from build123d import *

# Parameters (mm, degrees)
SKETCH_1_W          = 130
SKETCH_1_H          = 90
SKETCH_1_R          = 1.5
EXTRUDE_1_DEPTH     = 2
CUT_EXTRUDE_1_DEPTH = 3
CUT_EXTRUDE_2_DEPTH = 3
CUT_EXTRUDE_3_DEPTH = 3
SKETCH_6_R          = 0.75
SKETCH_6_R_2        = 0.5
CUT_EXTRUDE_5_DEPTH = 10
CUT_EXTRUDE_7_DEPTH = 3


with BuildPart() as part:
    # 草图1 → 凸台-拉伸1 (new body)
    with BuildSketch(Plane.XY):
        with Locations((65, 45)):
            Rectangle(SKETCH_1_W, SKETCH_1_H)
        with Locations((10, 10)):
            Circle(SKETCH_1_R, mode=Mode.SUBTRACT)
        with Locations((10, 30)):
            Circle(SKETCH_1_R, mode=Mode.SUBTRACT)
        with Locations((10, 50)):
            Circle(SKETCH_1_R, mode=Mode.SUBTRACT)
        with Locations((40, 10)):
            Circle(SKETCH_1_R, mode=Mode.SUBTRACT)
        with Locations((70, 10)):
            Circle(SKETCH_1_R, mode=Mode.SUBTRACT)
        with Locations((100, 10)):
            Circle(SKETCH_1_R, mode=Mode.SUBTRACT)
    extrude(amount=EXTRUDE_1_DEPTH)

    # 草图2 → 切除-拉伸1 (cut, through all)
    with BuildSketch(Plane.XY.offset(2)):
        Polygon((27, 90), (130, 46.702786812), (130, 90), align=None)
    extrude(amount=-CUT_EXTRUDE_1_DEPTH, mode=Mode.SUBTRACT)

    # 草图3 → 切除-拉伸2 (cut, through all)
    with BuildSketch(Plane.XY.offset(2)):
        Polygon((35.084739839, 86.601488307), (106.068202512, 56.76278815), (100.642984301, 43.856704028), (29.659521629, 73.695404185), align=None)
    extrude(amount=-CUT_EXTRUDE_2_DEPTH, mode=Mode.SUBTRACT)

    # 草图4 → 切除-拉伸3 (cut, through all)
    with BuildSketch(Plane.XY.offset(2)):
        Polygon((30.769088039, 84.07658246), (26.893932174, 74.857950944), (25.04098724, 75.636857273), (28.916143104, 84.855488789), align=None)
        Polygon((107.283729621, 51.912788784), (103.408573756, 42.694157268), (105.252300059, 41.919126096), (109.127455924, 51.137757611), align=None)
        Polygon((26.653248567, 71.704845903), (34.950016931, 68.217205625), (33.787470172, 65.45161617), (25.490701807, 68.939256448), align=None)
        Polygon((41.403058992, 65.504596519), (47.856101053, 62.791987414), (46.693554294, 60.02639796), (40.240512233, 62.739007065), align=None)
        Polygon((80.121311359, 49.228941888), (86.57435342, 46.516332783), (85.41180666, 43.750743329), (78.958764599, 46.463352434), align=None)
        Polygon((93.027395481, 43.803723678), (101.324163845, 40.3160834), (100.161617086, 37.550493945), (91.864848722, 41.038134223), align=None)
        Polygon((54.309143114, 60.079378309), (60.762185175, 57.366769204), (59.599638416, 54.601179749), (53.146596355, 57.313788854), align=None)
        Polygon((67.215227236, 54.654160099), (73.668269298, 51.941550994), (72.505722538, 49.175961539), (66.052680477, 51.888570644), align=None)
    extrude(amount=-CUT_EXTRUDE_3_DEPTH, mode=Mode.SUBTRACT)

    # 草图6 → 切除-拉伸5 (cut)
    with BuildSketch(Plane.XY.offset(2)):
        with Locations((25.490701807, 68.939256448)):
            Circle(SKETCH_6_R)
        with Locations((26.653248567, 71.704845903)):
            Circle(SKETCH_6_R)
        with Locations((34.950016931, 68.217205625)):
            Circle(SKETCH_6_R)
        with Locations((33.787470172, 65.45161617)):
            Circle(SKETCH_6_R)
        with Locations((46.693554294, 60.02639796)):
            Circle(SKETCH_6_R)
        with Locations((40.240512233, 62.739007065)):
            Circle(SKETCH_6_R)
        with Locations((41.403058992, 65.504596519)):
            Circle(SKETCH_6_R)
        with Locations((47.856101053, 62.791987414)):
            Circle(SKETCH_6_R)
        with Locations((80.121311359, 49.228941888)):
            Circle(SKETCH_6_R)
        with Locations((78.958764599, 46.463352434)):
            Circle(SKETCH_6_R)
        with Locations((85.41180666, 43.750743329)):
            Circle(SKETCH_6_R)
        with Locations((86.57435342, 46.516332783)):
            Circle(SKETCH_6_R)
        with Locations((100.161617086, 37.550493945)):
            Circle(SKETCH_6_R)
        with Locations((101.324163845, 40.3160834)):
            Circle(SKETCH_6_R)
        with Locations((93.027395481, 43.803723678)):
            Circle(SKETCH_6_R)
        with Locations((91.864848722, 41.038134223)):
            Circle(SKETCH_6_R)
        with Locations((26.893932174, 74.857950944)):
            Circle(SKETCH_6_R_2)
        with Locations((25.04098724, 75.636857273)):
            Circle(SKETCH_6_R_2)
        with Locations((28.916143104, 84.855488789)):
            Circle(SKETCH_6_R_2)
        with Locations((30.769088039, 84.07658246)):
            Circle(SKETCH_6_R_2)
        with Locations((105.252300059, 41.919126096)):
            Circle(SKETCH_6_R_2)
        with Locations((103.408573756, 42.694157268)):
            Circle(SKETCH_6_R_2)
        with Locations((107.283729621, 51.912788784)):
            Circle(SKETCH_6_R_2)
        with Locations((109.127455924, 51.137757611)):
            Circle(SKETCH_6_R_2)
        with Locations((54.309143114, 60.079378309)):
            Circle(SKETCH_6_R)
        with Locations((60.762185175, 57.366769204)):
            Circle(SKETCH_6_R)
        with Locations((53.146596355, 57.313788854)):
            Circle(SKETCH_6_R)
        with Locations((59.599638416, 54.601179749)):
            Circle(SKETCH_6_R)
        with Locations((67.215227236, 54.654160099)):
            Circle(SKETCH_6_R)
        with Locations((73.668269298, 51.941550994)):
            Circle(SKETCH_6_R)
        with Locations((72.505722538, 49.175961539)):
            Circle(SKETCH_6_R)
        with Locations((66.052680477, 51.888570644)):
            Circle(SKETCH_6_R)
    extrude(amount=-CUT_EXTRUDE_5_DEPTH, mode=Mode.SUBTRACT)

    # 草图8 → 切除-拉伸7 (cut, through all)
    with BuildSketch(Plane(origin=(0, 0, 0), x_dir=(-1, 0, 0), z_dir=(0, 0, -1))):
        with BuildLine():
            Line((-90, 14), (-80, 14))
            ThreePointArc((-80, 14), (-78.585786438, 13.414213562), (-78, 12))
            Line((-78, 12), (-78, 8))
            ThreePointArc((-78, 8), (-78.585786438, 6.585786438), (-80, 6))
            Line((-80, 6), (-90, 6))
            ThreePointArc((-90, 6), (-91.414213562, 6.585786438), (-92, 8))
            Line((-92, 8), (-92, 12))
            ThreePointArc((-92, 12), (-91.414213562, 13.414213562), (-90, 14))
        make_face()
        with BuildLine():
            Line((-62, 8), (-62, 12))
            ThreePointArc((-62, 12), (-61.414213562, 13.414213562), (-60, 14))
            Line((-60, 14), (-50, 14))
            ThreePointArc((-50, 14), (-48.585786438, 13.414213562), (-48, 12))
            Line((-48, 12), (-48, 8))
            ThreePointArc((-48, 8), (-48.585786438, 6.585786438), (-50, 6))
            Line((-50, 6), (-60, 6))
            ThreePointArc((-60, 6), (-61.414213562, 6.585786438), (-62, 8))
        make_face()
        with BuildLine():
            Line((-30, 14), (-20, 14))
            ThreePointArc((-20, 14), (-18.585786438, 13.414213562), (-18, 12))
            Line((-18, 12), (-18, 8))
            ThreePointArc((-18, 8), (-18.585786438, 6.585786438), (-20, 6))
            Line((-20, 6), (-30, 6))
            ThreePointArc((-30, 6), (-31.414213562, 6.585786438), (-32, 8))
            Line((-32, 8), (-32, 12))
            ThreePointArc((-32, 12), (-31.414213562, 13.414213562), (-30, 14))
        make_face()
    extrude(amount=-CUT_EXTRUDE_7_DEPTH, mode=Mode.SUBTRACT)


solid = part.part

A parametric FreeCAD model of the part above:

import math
import FreeCAD as App
import Part
import Sketcher
Q = App.Units.Quantity


def add_polygon(sketch, points):
    """Adds a closed chain of lines whose ends are joined by coincident constraints."""
    first, n = sketch.GeometryCount, len(points)
    for a, b in zip(points, points[1:] + points[:1]):
        sketch.addGeometry(Part.LineSegment(App.Vector(*a, 0), App.Vector(*b, 0)), False)
    for i in range(n):
        sketch.addConstraint(Sketcher.Constraint("Coincident", first + i, 2, first + (i + 1) % n, 1))

doc = App.newDocument("Part")
body = doc.addObject("PartDesign::Body", "Body")

# Sketch on XY plane
sketch1 = body.newObject("Sketcher::SketchObject", "Sketch")
sketch1.AttachmentSupport = (doc.getObject("XY_Plane"), [""])
sketch1.MapMode = "FlatFace"
add_polygon(sketch1, [(0, 90), (0, 0), (130, 0), (130, 90)])  # lines 0-3
sketch1.addGeometry(Part.Circle(App.Vector(10, 10, 0), App.Vector(0, 0, 1), 1.5), False)  # 4
sketch1.addGeometry(Part.Circle(App.Vector(40, 10, 0), App.Vector(0, 0, 1), 1.5), False)  # 5
sketch1.addGeometry(Part.Circle(App.Vector(70, 10, 0), App.Vector(0, 0, 1), 1.5), False)  # 6
sketch1.addGeometry(Part.Circle(App.Vector(100, 10, 0), App.Vector(0, 0, 1), 1.5), False)  # 7
sketch1.addGeometry(Part.Circle(App.Vector(10, 30, 0), App.Vector(0, 0, 1), 1.5), False)  # 8
sketch1.addGeometry(Part.Circle(App.Vector(10, 50, 0), App.Vector(0, 0, 1), 1.5), False)  # 9
sketch1.addConstraint([
    Sketcher.Constraint("Vertical", 0),
    Sketcher.Constraint("Horizontal", 1),
    Sketcher.Constraint("Vertical", 2),
    Sketcher.Constraint("Horizontal", 3),
    Sketcher.Constraint("Coincident", 0, 2, -1, 1),
    Sketcher.Constraint("Equal", 4, 5),
    Sketcher.Constraint("Equal", 5, 6),
    Sketcher.Constraint("Equal", 6, 7),
    Sketcher.Constraint("Equal", 7, 8),
    Sketcher.Constraint("Equal", 8, 9),
    Sketcher.Constraint("Horizontal", 4, 3, 5, 3),
    Sketcher.Constraint("Horizontal", 5, 3, 6, 3),
    Sketcher.Constraint("Horizontal", 6, 3, 7, 3),
    Sketcher.Constraint("Vertical", 4, 3, 8, 3),
    Sketcher.Constraint("Vertical", 8, 3, 9, 3),
    Sketcher.Constraint("Diameter", 4, 3.0),
    Sketcher.Constraint("DistanceX", 1, 1, 1, 2, 130.0),
    Sketcher.Constraint("DistanceY", 0, 2, 0, 1, 90.0),
    Sketcher.Constraint("DistanceX", -1, 1, 4, 3, 10.0),
    Sketcher.Constraint("DistanceY", -1, 1, 4, 3, 10.0),
    Sketcher.Constraint("DistanceX", -1, 1, 5, 3, 40.0),
    Sketcher.Constraint("DistanceX", -1, 1, 6, 3, 70.0),
    Sketcher.Constraint("DistanceX", -1, 1, 7, 3, 100.0),
    Sketcher.Constraint("DistanceY", -1, 1, 8, 3, 30.0),
    Sketcher.Constraint("DistanceY", -1, 1, 9, 3, 50.0),
])
pad1 = body.newObject("PartDesign::Pad", "Pad")
pad1.Profile = sketch1
pad1.Length = 2

# Sketch on XY plane
sketch2 = body.newObject("Sketcher::SketchObject", "Sketch001")
sketch2.AttachmentSupport = (doc.getObject("XY_Plane"), [""])
sketch2.MapMode = "FlatFace"
sketch2.AttachmentOffset = App.Placement(App.Vector(0, 0, 2), App.Rotation())
add_polygon(sketch2, [(27, 90), (130, 47), (130, 90)])  # lines 0-2
sketch2.addConstraint([
    Sketcher.Constraint("Vertical", 1),
    Sketcher.Constraint("Horizontal", 2),
    Sketcher.Constraint("DistanceX", 2, 2, 2, 1, 103.0),
    Sketcher.Constraint("DistanceX", -1, 1, 0, 2, 130.0),
    Sketcher.Constraint("DistanceY", -1, 1, 1, 2, 90.0),
    Sketcher.Constraint("Angle", 0, Q("-22.8 deg")),
])
pocket1 = body.newObject("PartDesign::Pocket", "Pocket")
pocket1.Profile = sketch2
pocket1.Type = "ThroughAll"

# Sketch on XY plane
sketch3 = body.newObject("Sketcher::SketchObject", "Sketch002")
sketch3.AttachmentSupport = (doc.getObject("XY_Plane"), [""])
sketch3.MapMode = "FlatFace"
sketch3.AttachmentOffset = App.Placement(App.Vector(0, 0, 2), App.Rotation())
add_polygon(sketch3, [(106, 57), (35, 87), (30, 74), (101, 44)])  # lines 0-3
sketch3.addConstraint([
    Sketcher.Constraint("Perpendicular", 0, 1),
    Sketcher.Constraint("Perpendicular", 1, 2),
    Sketcher.Constraint("Perpendicular", 2, 3),
    Sketcher.Constraint("Distance", 0, 77.0),
    Sketcher.Constraint("Distance", 1, 14.0),
    Sketcher.Constraint("Angle", 0, Q("157.2 deg")),
    Sketcher.Constraint("DistanceX", -1, 1, 0, 2, 35.08474),
    Sketcher.Constraint("DistanceY", -1, 1, 0, 2, 86.601488),
])
pocket2 = body.newObject("PartDesign::Pocket", "Pocket001")
pocket2.Profile = sketch3
pocket2.Type = "ThroughAll"

# Sketch on XY plane
sketch4 = body.newObject("Sketcher::SketchObject", "Sketch003")
sketch4.AttachmentSupport = (doc.getObject("XY_Plane"), [""])
sketch4.MapMode = "FlatFace"
sketch4.AttachmentOffset = App.Placement(App.Vector(0, 0, 2), App.Rotation())
add_polygon(sketch4, [(26.9, 74.9), (30.8, 84.1), (28.9, 84.9), (25, 75.6)])  # lines 0-3
add_polygon(sketch4, [(107.3, 51.9), (103.4, 42.7), (105.3, 41.9), (109.1, 51.1)])  # lines 4-7
add_polygon(sketch4, [(35, 68.2), (26.7, 71.7), (25.5, 68.9), (33.8, 65.5)])  # lines 8-11
add_polygon(sketch4, [(47.9, 62.8), (41.4, 65.5), (40.2, 62.7), (46.7, 60)])  # lines 12-15
add_polygon(sketch4, [(86.6, 46.5), (80.1, 49.2), (79, 46.5), (85.4, 43.8)])  # lines 16-19
add_polygon(sketch4, [(101.3, 40.3), (93, 43.8), (91.9, 41), (100.2, 37.6)])  # lines 20-23
add_polygon(sketch4, [(60.8, 57.4), (54.3, 60.1), (53.1, 57.3), (59.6, 54.6)])  # lines 24-27
add_polygon(sketch4, [(73.7, 51.9), (67.2, 54.7), (66.1, 51.9), (72.5, 49.2)])  # lines 28-31
sketch4.addConstraint([
    Sketcher.Constraint("Perpendicular", 0, 1),
    Sketcher.Constraint("Perpendicular", 1, 2),
    Sketcher.Constraint("Perpendicular", 2, 3),
    Sketcher.Constraint("Perpendicular", 3, 4),
    Sketcher.Constraint("Perpendicular", 4, 5),
    Sketcher.Constraint("Perpendicular", 5, 6),
    Sketcher.Constraint("Perpendicular", 6, 7),
    Sketcher.Constraint("Parallel", 7, 8),
    Sketcher.Constraint("Perpendicular", 8, 9),
    Sketcher.Constraint("Perpendicular", 9, 10),
    Sketcher.Constraint("Perpendicular", 10, 11),
    Sketcher.Constraint("Perpendicular", 11, 12),
    Sketcher.Constraint("Perpendicular", 12, 13),
    Sketcher.Constraint("Perpendicular", 13, 14),
    Sketcher.Constraint("Perpendicular", 14, 15),
    Sketcher.Constraint("Perpendicular", 15, 16),
    Sketcher.Constraint("Perpendicular", 16, 17),
    Sketcher.Constraint("Perpendicular", 17, 18),
    Sketcher.Constraint("Perpendicular", 18, 19),
    Sketcher.Constraint("Perpendicular", 19, 20),
    Sketcher.Constraint("Perpendicular", 20, 21),
    Sketcher.Constraint("Perpendicular", 21, 22),
    Sketcher.Constraint("Perpendicular", 22, 23),
    Sketcher.Constraint("Perpendicular", 23, 24),
    Sketcher.Constraint("Perpendicular", 24, 25),
    Sketcher.Constraint("Perpendicular", 25, 26),
    Sketcher.Constraint("Perpendicular", 26, 27),
    Sketcher.Constraint("Perpendicular", 27, 28),
    Sketcher.Constraint("Perpendicular", 28, 29),
    Sketcher.Constraint("Perpendicular", 29, 30),
    Sketcher.Constraint("Perpendicular", 30, 31),
    Sketcher.Constraint("Equal", 2, 4),
    Sketcher.Constraint("Equal", 11, 13),
    Sketcher.Constraint("Equal", 14, 16),
    Sketcher.Constraint("Equal", 15, 17),
    Sketcher.Constraint("Equal", 10, 20),
    Sketcher.Constraint("Equal", 19, 21),
    Sketcher.Constraint("Equal", 18, 24),
    Sketcher.Constraint("Equal", 23, 25),
    Sketcher.Constraint("Equal", 26, 28),
    Sketcher.Constraint("Equal", 27, 29),
    Sketcher.Constraint("Distance", 0, 10.0),
    Sketcher.Constraint("Distance", 5, 2.0),
    Sketcher.Constraint("Distance", 8, 9.0),
    Sketcher.Constraint("Distance", 9, 3.0),
    Sketcher.Constraint("Distance", 12, 7.0),
    Sketcher.Constraint("Angle", 0, Q("67.2 deg")),
    Sketcher.Constraint("Distance", 1, 2.01),
    Sketcher.Constraint("DistanceX", -1, 1, 5, 2, 105.2523),
    Sketcher.Constraint("DistanceX", -1, 1, 9, 2, 25.490702),
    Sketcher.Constraint("DistanceX", -1, 1, 15, 2, 47.856101),
    Sketcher.Constraint("DistanceY", 4, 2, 2, 2, 32.9427),
    Sketcher.Constraint("DistanceY", 9, 2, 2, 2, 6.697601),
    Sketcher.Constraint("DistanceY", 13, 2, 11, 2, 5.478199),
    Sketcher.Constraint("DistanceY", 21, 2, 19, 2, 5.478199),
    Sketcher.Constraint("DistanceY", 25, 2, 15, 2, 5.478199),
    Sketcher.Constraint("DistanceY", 29, 2, 27, 2, 5.478199),
    Sketcher.Constraint("DistanceY", 17, 2, 31, 2, 5.478199),
    Sketcher.Constraint("DistanceX", -1, 1, 0, 2, 30.769088),
    Sketcher.Constraint("DistanceY", -1, 1, 1, 2, 84.855489),
    Sketcher.Constraint("DistanceX", -1, 1, 16, 2, 80.121311),
    Sketcher.Constraint("DistanceX", -1, 1, 21, 2, 91.864849),
    Sketcher.Constraint("DistanceX", -1, 1, 26, 2, 59.599638),
    Sketcher.Constraint("DistanceX", -1, 1, 29, 2, 66.05268),
])
pocket3 = body.newObject("PartDesign::Pocket", "Pocket002")
pocket3.Profile = sketch4
pocket3.Type = "ThroughAll"

# Sketch on XY plane
sketch5 = body.newObject("Sketcher::SketchObject", "Sketch004")
sketch5.AttachmentSupport = (doc.getObject("XY_Plane"), [""])
sketch5.MapMode = "FlatFace"
sketch5.AttachmentOffset = App.Placement(App.Vector(0, 0, 2), App.Rotation())
sketch5.addGeometry([
    Part.Circle(App.Vector(25.5, 68.9, 0), App.Vector(0, 0, 1), 0.8),  # 0
    Part.Circle(App.Vector(26.7, 71.7, 0), App.Vector(0, 0, 1), 0.8),  # 1
    Part.Circle(App.Vector(35, 68.2, 0), App.Vector(0, 0, 1), 0.8),  # 2
    Part.Circle(App.Vector(33.8, 65.5, 0), App.Vector(0, 0, 1), 0.8),  # 3
    Part.Circle(App.Vector(46.7, 60, 0), App.Vector(0, 0, 1), 0.8),  # 4
    Part.Circle(App.Vector(40.2, 62.7, 0), App.Vector(0, 0, 1), 0.8),  # 5
    Part.Circle(App.Vector(41.4, 65.5, 0), App.Vector(0, 0, 1), 0.8),  # 6
    Part.Circle(App.Vector(47.9, 62.8, 0), App.Vector(0, 0, 1), 0.8),  # 7
    Part.Circle(App.Vector(80.1, 49.2, 0), App.Vector(0, 0, 1), 0.8),  # 8
    Part.Circle(App.Vector(79, 46.5, 0), App.Vector(0, 0, 1), 0.8),  # 9
    Part.Circle(App.Vector(85.4, 43.8, 0), App.Vector(0, 0, 1), 0.8),  # 10
    Part.Circle(App.Vector(86.6, 46.5, 0), App.Vector(0, 0, 1), 0.8),  # 11
    Part.Circle(App.Vector(100.2, 37.6, 0), App.Vector(0, 0, 1), 0.8),  # 12
    Part.Circle(App.Vector(101.3, 40.3, 0), App.Vector(0, 0, 1), 0.8),  # 13
    Part.Circle(App.Vector(93, 43.8, 0), App.Vector(0, 0, 1), 0.8),  # 14
    Part.Circle(App.Vector(91.9, 41, 0), App.Vector(0, 0, 1), 0.8),  # 15
    Part.Circle(App.Vector(26.9, 74.9, 0), App.Vector(0, 0, 1), 0.5),  # 16
    Part.Circle(App.Vector(25, 75.6, 0), App.Vector(0, 0, 1), 0.5),  # 17
    Part.Circle(App.Vector(28.9, 84.9, 0), App.Vector(0, 0, 1), 0.5),  # 18
    Part.Circle(App.Vector(30.8, 84.1, 0), App.Vector(0, 0, 1), 0.5),  # 19
    Part.Circle(App.Vector(105.3, 41.9, 0), App.Vector(0, 0, 1), 0.5),  # 20
    Part.Circle(App.Vector(103.4, 42.7, 0), App.Vector(0, 0, 1), 0.5),  # 21
    Part.Circle(App.Vector(107.3, 51.9, 0), App.Vector(0, 0, 1), 0.5),  # 22
    Part.Circle(App.Vector(109.1, 51.1, 0), App.Vector(0, 0, 1), 0.5),  # 23
    Part.Circle(App.Vector(54.3, 60.1, 0), App.Vector(0, 0, 1), 0.8),  # 24
    Part.Circle(App.Vector(60.8, 57.4, 0), App.Vector(0, 0, 1), 0.8),  # 25
    Part.Circle(App.Vector(53.1, 57.3, 0), App.Vector(0, 0, 1), 0.8),  # 26
    Part.Circle(App.Vector(59.6, 54.6, 0), App.Vector(0, 0, 1), 0.8),  # 27
    Part.Circle(App.Vector(67.2, 54.7, 0), App.Vector(0, 0, 1), 0.8),  # 28
    Part.Circle(App.Vector(73.7, 51.9, 0), App.Vector(0, 0, 1), 0.8),  # 29
    Part.Circle(App.Vector(72.5, 49.2, 0), App.Vector(0, 0, 1), 0.8),  # 30
    Part.Circle(App.Vector(66.1, 51.9, 0), App.Vector(0, 0, 1), 0.8),  # 31
], False)
sketch5.addConstraint([
    Sketcher.Constraint("Equal", 0, 1),
    Sketcher.Constraint("Equal", 1, 2),
    Sketcher.Constraint("Equal", 2, 3),
    Sketcher.Constraint("Equal", 3, 4),
    Sketcher.Constraint("Equal", 4, 5),
    Sketcher.Constraint("Equal", 5, 6),
    Sketcher.Constraint("Equal", 6, 7),
    Sketcher.Constraint("Equal", 7, 8),
    Sketcher.Constraint("Equal", 8, 9),
    Sketcher.Constraint("Equal", 9, 10),
    Sketcher.Constraint("Equal", 10, 11),
    Sketcher.Constraint("Equal", 11, 12),
    Sketcher.Constraint("Equal", 12, 13),
    Sketcher.Constraint("Equal", 13, 14),
    Sketcher.Constraint("Equal", 14, 15),
    Sketcher.Constraint("Equal", 16, 17),
    Sketcher.Constraint("Equal", 17, 18),
    Sketcher.Constraint("Equal", 18, 19),
    Sketcher.Constraint("Equal", 19, 20),
    Sketcher.Constraint("Equal", 20, 21),
    Sketcher.Constraint("Equal", 21, 22),
    Sketcher.Constraint("Equal", 22, 23),
    Sketcher.Constraint("Equal", 15, 24),
    Sketcher.Constraint("Equal", 24, 25),
    Sketcher.Constraint("Equal", 25, 26),
    Sketcher.Constraint("Equal", 26, 27),
    Sketcher.Constraint("Equal", 27, 28),
    Sketcher.Constraint("Equal", 28, 29),
    Sketcher.Constraint("Equal", 29, 30),
    Sketcher.Constraint("Equal", 30, 31),
    Sketcher.Constraint("Diameter", 16, 1.0),
    Sketcher.Constraint("Diameter", 0, 1.5),
    Sketcher.Constraint("DistanceX", -1, 1, 0, 3, 25.490702),
    Sketcher.Constraint("DistanceX", -1, 1, 7, 3, 47.856101),
    Sketcher.Constraint("DistanceX", -1, 1, 20, 3, 105.2523),
    Sketcher.Constraint("DistanceY", 5, 3, 2, 3, 5.478199),
    Sketcher.Constraint("DistanceY", 4, 3, 6, 3, 5.478199),
    Sketcher.Constraint("DistanceX", 5, 3, 8, 3, 39.880799),
    Sketcher.Constraint("DistanceY", 10, 3, 8, 3, 5.478199),
    Sketcher.Constraint("DistanceX", 4, 3, 11, 3, 39.880799),
    Sketcher.Constraint("DistanceX", 9, 3, 13, 3, 22.365399),
    Sketcher.Constraint("DistanceY", 15, 3, 11, 3, 5.478199),
    Sketcher.Constraint("DistanceY", 0, 3, 17, 3, 6.697601),
    Sketcher.Constraint("DistanceX", 17, 3, 19, 3, 5.728101),
    Sketcher.Constraint("DistanceY", 21, 3, 23, 3, 8.4436),
    Sketcher.Constraint("DistanceY", 26, 3, 7, 3, 5.478199),
    Sketcher.Constraint("DistanceY", 27, 3, 24, 3, 5.478199),
    Sketcher.Constraint("DistanceY", 9, 3, 29, 3, 5.478199),
    Sketcher.Constraint("DistanceY", 30, 3, 28, 3, 5.478199),
    Sketcher.Constraint("DistanceY", 31, 3, 25, 3, 5.478199),
    Sketcher.Constraint("DistanceX", -1, 1, 1, 3, 26.653249),
    Sketcher.Constraint("DistanceX", -1, 1, 3, 3, 33.78747),
    Sketcher.Constraint("DistanceX", -1, 1, 6, 3, 41.403059),
    Sketcher.Constraint("DistanceX", -1, 1, 8, 3, 80.121311),
    Sketcher.Constraint("DistanceY", -1, 1, 8, 3, 49.228942),
    Sketcher.Constraint("DistanceX", -1, 1, 15, 3, 91.864849),
    Sketcher.Constraint("DistanceY", -1, 1, 16, 3, 74.857951),
    Sketcher.Constraint("DistanceY", -1, 1, 18, 3, 84.855489),
    Sketcher.Constraint("DistanceX", -1, 1, 19, 3, 30.769088),
    Sketcher.Constraint("DistanceX", -1, 1, 22, 3, 107.28373),
    Sketcher.Constraint("DistanceY", -1, 1, 22, 3, 51.912789),
    Sketcher.Constraint("DistanceY", -1, 1, 24, 3, 60.079378),
    Sketcher.Constraint("DistanceY", -1, 1, 25, 3, 57.366769),
    Sketcher.Constraint("DistanceY", -1, 1, 26, 3, 57.313789),
    Sketcher.Constraint("DistanceX", -1, 1, 27, 3, 59.599638),
    Sketcher.Constraint("DistanceY", -1, 1, 28, 3, 54.65416),
    Sketcher.Constraint("DistanceX", -1, 1, 29, 3, 73.668269),
    Sketcher.Constraint("DistanceY", -1, 1, 29, 3, 51.941551),
    Sketcher.Constraint("DistanceX", -1, 1, 31, 3, 66.05268),
    Sketcher.Constraint("DistanceY", 0, 3, 1, 3, 2.765589),
    Sketcher.Constraint("DistanceX", 1, 3, 2, 3, 8.296768),
    Sketcher.Constraint("DistanceY", 2, 3, 1, 3, 3.48764),
    Sketcher.Constraint("DistanceY", 3, 3, 2, 3, 2.765589),
    Sketcher.Constraint("DistanceY", 4, 3, 3, 3, 5.425218),
    Sketcher.Constraint("DistanceY", 4, 3, 7, 3, 2.765589),
    Sketcher.Constraint("DistanceX", 4, 3, 9, 3, 32.26521),
    Sketcher.Constraint("DistanceY", 10, 3, 11, 3, 2.765589),
    Sketcher.Constraint("DistanceX", 10, 3, 12, 3, 14.74981),
    Sketcher.Constraint("DistanceY", 12, 3, 10, 3, 6.200249),
    Sketcher.Constraint("DistanceY", 12, 3, 13, 3, 2.765589),
    Sketcher.Constraint("DistanceY", 14, 3, 11, 3, 2.712609),
    Sketcher.Constraint("DistanceX", 10, 3, 14, 3, 7.615589),
    Sketcher.Constraint("DistanceX", 14, 3, 13, 3, 8.296768),
    Sketcher.Constraint("DistanceX", 15, 3, 12, 3, 8.296768),
    Sketcher.Constraint("DistanceX", 0, 3, 16, 3, 1.40323),
    Sketcher.Constraint("DistanceX", 16, 3, 18, 3, 2.022211),
    Sketcher.Constraint("DistanceY", 16, 3, 19, 3, 9.218632),
    Sketcher.Constraint("DistanceY", 15, 3, 20, 3, 0.880992),
    Sketcher.Constraint("DistanceY", 20, 3, 21, 3, 0.775031),
    Sketcher.Constraint("DistanceX", 13, 3, 21, 3, 2.08441),
    Sketcher.Constraint("DistanceX", 12, 3, 23, 3, 8.965839),
    Sketcher.Constraint("DistanceX", 4, 3, 24, 3, 7.615589),
    Sketcher.Constraint("DistanceX", 4, 3, 25, 3, 14.068631),
    Sketcher.Constraint("DistanceX", 26, 3, 25, 3, 7.615589),
    Sketcher.Constraint("DistanceX", 27, 3, 28, 3, 7.615589),
    Sketcher.Constraint("DistanceX", 30, 3, 8, 3, 7.615589),
])
pocket4 = body.newObject("PartDesign::Pocket", "Pocket003")
pocket4.Profile = sketch5
pocket4.Length = 10

# Sketch on XY plane
sketch6 = body.newObject("Sketcher::SketchObject", "Sketch005")
sketch6.AttachmentSupport = (doc.getObject("XY_Plane"), [""])
sketch6.MapMode = "FlatFace"
sketch6.addGeometry([
    Part.LineSegment(App.Vector(80, 14, 0), App.Vector(90, 14, 0)),  # 0
    Part.ArcOfCircle(Part.Circle(App.Vector(90, 12, 0), App.Vector(0, 0, 1), 2), math.radians(0), math.radians(90)),  # 1
    Part.LineSegment(App.Vector(92, 12, 0), App.Vector(92, 8, 0)),  # 2
    Part.ArcOfCircle(Part.Circle(App.Vector(90, 8, 0), App.Vector(0, 0, 1), 2), math.radians(-90), math.radians(0)),  # 3
    Part.LineSegment(App.Vector(90, 6, 0), App.Vector(80, 6, 0)),  # 4
    Part.ArcOfCircle(Part.Circle(App.Vector(80, 8, 0), App.Vector(0, 0, 1), 2), math.radians(-180), math.radians(-90)),  # 5
    Part.LineSegment(App.Vector(78, 8, 0), App.Vector(78, 12, 0)),  # 6
    Part.ArcOfCircle(Part.Circle(App.Vector(80, 12, 0), App.Vector(0, 0, 1), 2), math.radians(90), math.radians(180)),  # 7
    Part.LineSegment(App.Vector(62, 12, 0), App.Vector(62, 8, 0)),  # 8
    Part.ArcOfCircle(Part.Circle(App.Vector(60, 8, 0), App.Vector(0, 0, 1), 2), math.radians(-90), math.radians(0)),  # 9
    Part.LineSegment(App.Vector(60, 6, 0), App.Vector(50, 6, 0)),  # 10
    Part.ArcOfCircle(Part.Circle(App.Vector(50, 8, 0), App.Vector(0, 0, 1), 2), math.radians(-180), math.radians(-90)),  # 11
    Part.LineSegment(App.Vector(48, 8, 0), App.Vector(48, 12, 0)),  # 12
    Part.ArcOfCircle(Part.Circle(App.Vector(50, 12, 0), App.Vector(0, 0, 1), 2), math.radians(90), math.radians(180)),  # 13
    Part.LineSegment(App.Vector(50, 14, 0), App.Vector(60, 14, 0)),  # 14
    Part.ArcOfCircle(Part.Circle(App.Vector(60, 12, 0), App.Vector(0, 0, 1), 2), math.radians(0), math.radians(90)),  # 15
    Part.LineSegment(App.Vector(20, 14, 0), App.Vector(30, 14, 0)),  # 16
    Part.ArcOfCircle(Part.Circle(App.Vector(30, 12, 0), App.Vector(0, 0, 1), 2), math.radians(0), math.radians(90)),  # 17
    Part.LineSegment(App.Vector(32, 12, 0), App.Vector(32, 8, 0)),  # 18
    Part.ArcOfCircle(Part.Circle(App.Vector(30, 8, 0), App.Vector(0, 0, 1), 2), math.radians(-90), math.radians(0)),  # 19
    Part.LineSegment(App.Vector(30, 6, 0), App.Vector(20, 6, 0)),  # 20
    Part.ArcOfCircle(Part.Circle(App.Vector(20, 8, 0), App.Vector(0, 0, 1), 2), math.radians(-180), math.radians(-90)),  # 21
    Part.LineSegment(App.Vector(18, 8, 0), App.Vector(18, 12, 0)),  # 22
    Part.ArcOfCircle(Part.Circle(App.Vector(20, 12, 0), App.Vector(0, 0, 1), 2), math.radians(90), math.radians(180)),  # 23
], False)
sketch6.addConstraint([
    Sketcher.Constraint("Tangent", 0, 2, 1, 2),
    Sketcher.Constraint("Tangent", 1, 1, 2, 1),
    Sketcher.Constraint("Tangent", 2, 2, 3, 2),
    Sketcher.Constraint("Tangent", 3, 1, 4, 1),
    Sketcher.Constraint("Tangent", 4, 2, 5, 2),
    Sketcher.Constraint("Tangent", 5, 1, 6, 1),
    Sketcher.Constraint("Tangent", 6, 2, 7, 2),
    Sketcher.Constraint("Tangent", 7, 1, 0, 1),
    Sketcher.Constraint("Tangent", 8, 2, 9, 2),
    Sketcher.Constraint("Tangent", 9, 1, 10, 1),
    Sketcher.Constraint("Tangent", 10, 2, 11, 2),
    Sketcher.Constraint("Tangent", 11, 1, 12, 1),
    Sketcher.Constraint("Tangent", 12, 2, 13, 2),
    Sketcher.Constraint("Tangent", 13, 1, 14, 1),
    Sketcher.Constraint("Tangent", 14, 2, 15, 2),
    Sketcher.Constraint("Tangent", 15, 1, 8, 1),
    Sketcher.Constraint("Tangent", 16, 2, 17, 2),
    Sketcher.Constraint("Tangent", 17, 1, 18, 1),
    Sketcher.Constraint("Tangent", 18, 2, 19, 2),
    Sketcher.Constraint("Tangent", 19, 1, 20, 1),
    Sketcher.Constraint("Tangent", 20, 2, 21, 2),
    Sketcher.Constraint("Tangent", 21, 1, 22, 1),
    Sketcher.Constraint("Tangent", 22, 2, 23, 2),
    Sketcher.Constraint("Tangent", 23, 1, 16, 1),
    Sketcher.Constraint("Horizontal", 0),
    Sketcher.Constraint("Vertical", 2),
    Sketcher.Constraint("Horizontal", 4),
    Sketcher.Constraint("Vertical", 6),
    Sketcher.Constraint("Vertical", 8),
    Sketcher.Constraint("Horizontal", 10),
    Sketcher.Constraint("Vertical", 12),
    Sketcher.Constraint("Horizontal", 14),
    Sketcher.Constraint("Horizontal", 16),
    Sketcher.Constraint("Vertical", 18),
    Sketcher.Constraint("Horizontal", 20),
    Sketcher.Constraint("Vertical", 22),
    Sketcher.Constraint("Equal", 1, 3),
    Sketcher.Constraint("Equal", 3, 5),
    Sketcher.Constraint("Equal", 5, 7),
    Sketcher.Constraint("Equal", 7, 9),
    Sketcher.Constraint("Equal", 9, 11),
    Sketcher.Constraint("Equal", 11, 13),
    Sketcher.Constraint("Equal", 13, 15),
    Sketcher.Constraint("Equal", 15, 17),
    Sketcher.Constraint("Equal", 17, 19),
    Sketcher.Constraint("Equal", 19, 21),
    Sketcher.Constraint("Equal", 21, 23),
    Sketcher.Constraint("Horizontal", 5, 3, 9, 3),
    Sketcher.Constraint("Horizontal", 7, 3, 13, 3),
    Sketcher.Constraint("Horizontal", 15, 3, 17, 3),
    Sketcher.Constraint("Horizontal", 11, 3, 19, 3),
    Sketcher.Constraint("Equal", 4, 10),
    Sketcher.Constraint("Equal", 14, 16),
    Sketcher.Constraint("Radius", 1, 2.0),
    Sketcher.Constraint("DistanceX", 0, 1, 0, 2, 10.0),
    Sketcher.Constraint("DistanceY", 2, 2, 2, 1, 4.0),
    Sketcher.Constraint("DistanceX", -1, 1, 1, 3, 90.0),
    Sketcher.Constraint("DistanceY", -1, 1, 1, 3, 12.0),
    Sketcher.Constraint("DistanceX", -1, 1, 9, 3, 60.0),
    Sketcher.Constraint("DistanceX", -1, 1, 17, 3, 30.0),
])
pocket5 = body.newObject("PartDesign::Pocket", "Pocket004")
pocket5.Profile = sketch6
pocket5.Type = "ThroughAll"
pocket5.Reversed = True

doc.recompute()
